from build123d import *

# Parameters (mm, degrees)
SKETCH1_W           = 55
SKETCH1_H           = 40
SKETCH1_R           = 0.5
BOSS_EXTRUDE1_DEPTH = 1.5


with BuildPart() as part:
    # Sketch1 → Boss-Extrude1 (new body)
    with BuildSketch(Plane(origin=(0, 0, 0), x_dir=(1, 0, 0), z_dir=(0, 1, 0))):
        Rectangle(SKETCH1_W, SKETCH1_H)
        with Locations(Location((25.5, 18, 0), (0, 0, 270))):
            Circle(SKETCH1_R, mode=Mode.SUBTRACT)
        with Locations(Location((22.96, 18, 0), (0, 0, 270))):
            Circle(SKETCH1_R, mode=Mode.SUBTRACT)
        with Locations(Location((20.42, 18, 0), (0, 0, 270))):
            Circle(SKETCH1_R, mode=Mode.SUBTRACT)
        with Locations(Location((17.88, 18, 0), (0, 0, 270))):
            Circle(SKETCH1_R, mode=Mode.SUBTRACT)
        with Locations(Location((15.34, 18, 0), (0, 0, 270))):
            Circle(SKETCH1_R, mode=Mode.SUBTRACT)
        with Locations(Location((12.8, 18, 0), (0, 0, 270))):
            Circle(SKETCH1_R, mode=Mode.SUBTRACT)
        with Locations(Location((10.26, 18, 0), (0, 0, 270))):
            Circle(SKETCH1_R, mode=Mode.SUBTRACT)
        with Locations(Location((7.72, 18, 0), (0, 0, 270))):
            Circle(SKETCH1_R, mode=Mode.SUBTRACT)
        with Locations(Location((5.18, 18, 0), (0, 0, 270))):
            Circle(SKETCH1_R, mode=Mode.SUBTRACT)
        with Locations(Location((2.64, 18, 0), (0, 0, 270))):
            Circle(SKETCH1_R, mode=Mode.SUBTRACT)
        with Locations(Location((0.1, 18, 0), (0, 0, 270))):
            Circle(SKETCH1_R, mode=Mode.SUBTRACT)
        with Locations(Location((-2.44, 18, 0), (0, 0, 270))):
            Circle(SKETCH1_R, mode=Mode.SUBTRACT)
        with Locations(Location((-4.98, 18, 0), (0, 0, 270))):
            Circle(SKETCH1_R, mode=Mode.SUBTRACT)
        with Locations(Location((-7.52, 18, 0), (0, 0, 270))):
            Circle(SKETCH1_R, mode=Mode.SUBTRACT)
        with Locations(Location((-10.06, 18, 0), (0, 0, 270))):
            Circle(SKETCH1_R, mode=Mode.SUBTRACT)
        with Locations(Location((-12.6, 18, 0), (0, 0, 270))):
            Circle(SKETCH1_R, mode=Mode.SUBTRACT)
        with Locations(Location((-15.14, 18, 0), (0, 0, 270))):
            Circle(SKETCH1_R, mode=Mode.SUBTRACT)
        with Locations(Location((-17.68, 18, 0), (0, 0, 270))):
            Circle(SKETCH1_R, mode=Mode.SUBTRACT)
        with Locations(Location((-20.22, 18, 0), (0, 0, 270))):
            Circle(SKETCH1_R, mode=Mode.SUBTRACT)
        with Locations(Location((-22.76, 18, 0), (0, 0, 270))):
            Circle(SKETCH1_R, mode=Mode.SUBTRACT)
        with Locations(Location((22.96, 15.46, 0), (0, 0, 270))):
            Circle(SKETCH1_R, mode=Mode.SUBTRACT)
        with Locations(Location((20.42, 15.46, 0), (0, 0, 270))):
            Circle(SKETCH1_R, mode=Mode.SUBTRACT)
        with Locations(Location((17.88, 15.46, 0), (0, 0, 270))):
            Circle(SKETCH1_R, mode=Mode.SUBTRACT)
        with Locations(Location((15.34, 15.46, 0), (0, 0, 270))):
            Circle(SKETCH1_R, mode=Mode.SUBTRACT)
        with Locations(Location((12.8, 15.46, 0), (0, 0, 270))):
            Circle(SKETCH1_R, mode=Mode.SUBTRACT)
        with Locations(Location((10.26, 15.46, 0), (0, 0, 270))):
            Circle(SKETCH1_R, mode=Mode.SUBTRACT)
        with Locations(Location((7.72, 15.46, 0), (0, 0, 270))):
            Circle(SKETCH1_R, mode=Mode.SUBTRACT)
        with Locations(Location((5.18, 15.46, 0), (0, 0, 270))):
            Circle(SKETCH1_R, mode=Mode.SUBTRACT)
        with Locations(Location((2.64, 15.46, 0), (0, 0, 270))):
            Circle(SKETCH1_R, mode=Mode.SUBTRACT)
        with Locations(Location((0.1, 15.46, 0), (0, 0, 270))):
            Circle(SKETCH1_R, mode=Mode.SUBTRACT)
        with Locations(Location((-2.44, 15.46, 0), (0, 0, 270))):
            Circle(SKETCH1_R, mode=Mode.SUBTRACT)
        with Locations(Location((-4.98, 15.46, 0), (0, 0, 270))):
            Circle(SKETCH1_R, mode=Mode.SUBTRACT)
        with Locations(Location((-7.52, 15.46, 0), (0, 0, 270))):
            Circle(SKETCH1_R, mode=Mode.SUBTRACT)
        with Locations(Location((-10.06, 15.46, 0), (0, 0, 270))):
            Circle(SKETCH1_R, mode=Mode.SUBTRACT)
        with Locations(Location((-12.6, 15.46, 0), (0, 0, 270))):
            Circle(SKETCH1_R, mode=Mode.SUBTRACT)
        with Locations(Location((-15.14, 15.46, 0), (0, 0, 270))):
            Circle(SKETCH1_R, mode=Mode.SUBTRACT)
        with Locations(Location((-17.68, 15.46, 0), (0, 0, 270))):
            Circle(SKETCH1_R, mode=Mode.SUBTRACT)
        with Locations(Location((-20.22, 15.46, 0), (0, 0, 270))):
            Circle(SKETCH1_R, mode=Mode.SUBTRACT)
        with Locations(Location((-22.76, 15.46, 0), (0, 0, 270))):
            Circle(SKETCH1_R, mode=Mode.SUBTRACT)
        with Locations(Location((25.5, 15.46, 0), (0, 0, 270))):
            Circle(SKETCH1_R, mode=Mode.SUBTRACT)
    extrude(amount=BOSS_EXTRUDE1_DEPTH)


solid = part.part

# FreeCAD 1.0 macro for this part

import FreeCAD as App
import Part
import Sketcher
Q = App.Units.Quantity

doc = App.newDocument("Part")
params = doc.addObject("Spreadsheet::Sheet", "Params")
for row, (alias, value) in enumerate([
    ("sketch1_diameter", "1 mm"),
    ("sketch1_width", "55 mm"),
    ("sketch1_height", "40 mm"),
    ("pad1_length", "1.5 mm"),
], start=1):
    params.set(f"A{row}", alias)
    params.set(f"B{row}", "=" + value)
    params.setAlias(f"B{row}", alias)

body = doc.addObject("PartDesign::Body", "Body")

# Sketch on XZ plane
sketch1 = body.newObject("Sketcher::SketchObject", "Sketch")
sketch1.AttachmentSupport = (doc.getObject("XZ_Plane"), [""])
sketch1.MapMode = "FlatFace"
sketch1.addGeometry(Part.LineSegment(App.Vector(-27.5, -20, 0), App.Vector(-27.5, 20, 0)), False)
sketch1.addGeometry(Part.LineSegment(App.Vector(-27.5, 20, 0), App.Vector(27.5, 20, 0)), False)
sketch1.addGeometry(Part.LineSegment(App.Vector(27.5, 20, 0), App.Vector(27.5, -20, 0)), False)
sketch1.addGeometry(Part.LineSegment(App.Vector(27.5, -20, 0), App.Vector(-27.5, -20, 0)), False)
sketch1.addGeometry(Part.Circle(App.Vector(-22.76, -15.46, 0), App.Vector(0, 0, 1), 0.5), False)
sketch1.addGeometry(Part.Circle(App.Vector(-20.22, -15.46, 0), App.Vector(0, 0, 1), 0.5), False)
sketch1.addGeometry(Part.Circle(App.Vector(-17.68, -15.46, 0), App.Vector(0, 0, 1), 0.5), False)
sketch1.addGeometry(Part.Circle(App.Vector(-15.14, -15.46, 0), App.Vector(0, 0, 1), 0.5), False)
sketch1.addGeometry(Part.Circle(App.Vector(-12.6, -15.46, 0), App.Vector(0, 0, 1), 0.5), False)
sketch1.addGeometry(Part.Circle(App.Vector(-10.06, -15.46, 0), App.Vector(0, 0, 1), 0.5), False)
sketch1.addGeometry(Part.Circle(App.Vector(-7.52, -15.46, 0), App.Vector(0, 0, 1), 0.5), False)
sketch1.addGeometry(Part.Circle(App.Vector(-4.98, -15.46, 0), App.Vector(0, 0, 1), 0.5), False)
sketch1.addGeometry(Part.Circle(App.Vector(-2.44, -15.46, 0), App.Vector(0, 0, 1), 0.5), False)
sketch1.addGeometry(Part.Circle(App.Vector(0.1, -15.46, 0), App.Vector(0, 0, 1), 0.5), False)
sketch1.addGeometry(Part.Circle(App.Vector(2.64, -15.46, 0), App.Vector(0, 0, 1), 0.5), False)
sketch1.addGeometry(Part.Circle(App.Vector(5.18, -15.46, 0), App.Vector(0, 0, 1), 0.5), False)
sketch1.addGeometry(Part.Circle(App.Vector(7.72, -15.46, 0), App.Vector(0, 0, 1), 0.5), False)
sketch1.addGeometry(Part.Circle(App.Vector(10.26, -15.46, 0), App.Vector(0, 0, 1), 0.5), False)
sketch1.addGeometry(Part.Circle(App.Vector(12.8, -15.46, 0), App.Vector(0, 0, 1), 0.5), False)
sketch1.addGeometry(Part.Circle(App.Vector(15.34, -15.46, 0), App.Vector(0, 0, 1), 0.5), False)
sketch1.addGeometry(Part.Circle(App.Vector(17.88, -15.46, 0), App.Vector(0, 0, 1), 0.5), False)
sketch1.addGeometry(Part.Circle(App.Vector(20.42, -15.46, 0), App.Vector(0, 0, 1), 0.5), False)
sketch1.addGeometry(Part.Circle(App.Vector(22.96, -15.46, 0), App.Vector(0, 0, 1), 0.5), False)
sketch1.addGeometry(Part.Circle(App.Vector(25.5, -15.46, 0), App.Vector(0, 0, 1), 0.5), False)
sketch1.addGeometry(Part.Circle(App.Vector(-22.76, -18, 0), App.Vector(0, 0, 1), 0.5), False)
sketch1.addGeometry(Part.Circle(App.Vector(-20.22, -18, 0), App.Vector(0, 0, 1), 0.5), False)
sketch1.addGeometry(Part.Circle(App.Vector(-17.68, -18, 0), App.Vector(0, 0, 1), 0.5), False)
sketch1.addGeometry(Part.Circle(App.Vector(-15.14, -18, 0), App.Vector(0, 0, 1), 0.5), False)
sketch1.addGeometry(Part.Circle(App.Vector(-12.6, -18, 0), App.Vector(0, 0, 1), 0.5), False)
sketch1.addGeometry(Part.Circle(App.Vector(-10.06, -18, 0), App.Vector(0, 0, 1), 0.5), False)
sketch1.addGeometry(Part.Circle(App.Vector(-7.52, -18, 0), App.Vector(0, 0, 1), 0.5), False)
sketch1.addGeometry(Part.Circle(App.Vector(-4.98, -18, 0), App.Vector(0, 0, 1), 0.5), False)
sketch1.addGeometry(Part.Circle(App.Vector(-2.44, -18, 0), App.Vector(0, 0, 1), 0.5), False)
sketch1.addGeometry(Part.Circle(App.Vector(0.1, -18, 0), App.Vector(0, 0, 1), 0.5), False)
sketch1.addGeometry(Part.Circle(App.Vector(2.64, -18, 0), App.Vector(0, 0, 1), 0.5), False)
sketch1.addGeometry(Part.Circle(App.Vector(5.18, -18, 0), App.Vector(0, 0, 1), 0.5), False)
sketch1.addGeometry(Part.Circle(App.Vector(7.72, -18, 0), App.Vector(0, 0, 1), 0.5), False)
sketch1.addGeometry(Part.Circle(App.Vector(10.26, -18, 0), App.Vector(0, 0, 1), 0.5), False)
sketch1.addGeometry(Part.Circle(App.Vector(12.8, -18, 0), App.Vector(0, 0, 1), 0.5), False)
sketch1.addGeometry(Part.Circle(App.Vector(15.34, -18, 0), App.Vector(0, 0, 1), 0.5), False)
sketch1.addGeometry(Part.Circle(App.Vector(17.88, -18, 0), App.Vector(0, 0, 1), 0.5), False)
sketch1.addGeometry(Part.Circle(App.Vector(20.42, -18, 0), App.Vector(0, 0, 1), 0.5), False)
sketch1.addGeometry(Part.Circle(App.Vector(22.96, -18, 0), App.Vector(0, 0, 1), 0.5), False)
sketch1.addGeometry(Part.Circle(App.Vector(25.5, -18, 0), App.Vector(0, 0, 1), 0.5), False)
sketch1.addConstraint(Sketcher.Constraint("Coincident", 0, 2, 1, 1))
sketch1.addConstraint(Sketcher.Constraint("Coincident", 1, 2, 2, 1))
sketch1.addConstraint(Sketcher.Constraint("Coincident", 2, 2, 3, 1))
sketch1.addConstraint(Sketcher.Constraint("Coincident", 3, 2, 0, 1))
sketch1.addConstraint(Sketcher.Constraint("Vertical", 0))
sketch1.addConstraint(Sketcher.Constraint("Horizontal", 1))
sketch1.addConstraint(Sketcher.Constraint("Vertical", 2))
sketch1.addConstraint(Sketcher.Constraint("Horizontal", 3))
sketch1.addConstraint(Sketcher.Constraint("Equal", 4, 5))
sketch1.addConstraint(Sketcher.Constraint("Equal", 5, 6))
sketch1.addConstraint(Sketcher.Constraint("Equal", 6, 7))
sketch1.addConstraint(Sketcher.Constraint("Equal", 7, 8))
sketch1.addConstraint(Sketcher.Constraint("Equal", 8, 9))
sketch1.addConstraint(Sketcher.Constraint("Equal", 9, 10))
sketch1.addConstraint(Sketcher.Constraint("Equal", 10, 11))
sketch1.addConstraint(Sketcher.Constraint("Equal", 11, 12))
sketch1.addConstraint(Sketcher.Constraint("Equal", 12, 13))
sketch1.addConstraint(Sketcher.Constraint("Equal", 13, 14))
sketch1.addConstraint(Sketcher.Constraint("Equal", 14, 15))
sketch1.addConstraint(Sketcher.Constraint("Equal", 15, 16))
sketch1.addConstraint(Sketcher.Constraint("Equal", 16, 17))
sketch1.addConstraint(Sketcher.Constraint("Equal", 17, 18))
sketch1.addConstraint(Sketcher.Constraint("Equal", 18, 19))
sketch1.addConstraint(Sketcher.Constraint("Equal", 19, 20))
sketch1.addConstraint(Sketcher.Constraint("Equal", 20, 21))
sketch1.addConstraint(Sketcher.Constraint("Equal", 21, 22))
sketch1.addConstraint(Sketcher.Constraint("Equal", 22, 23))
sketch1.addConstraint(Sketcher.Constraint("Equal", 23, 24))
sketch1.addConstraint(Sketcher.Constraint("Equal", 24, 25))
sketch1.addConstraint(Sketcher.Constraint("Equal", 25, 26))
sketch1.addConstraint(Sketcher.Constraint("Equal", 26, 27))
sketch1.addConstraint(Sketcher.Constraint("Equal", 27, 28))
sketch1.addConstraint(Sketcher.Constraint("Equal", 28, 29))
sketch1.addConstraint(Sketcher.Constraint("Equal", 29, 30))
sketch1.addConstraint(Sketcher.Constraint("Equal", 30, 31))
sketch1.addConstraint(Sketcher.Constraint("Equal", 31, 32))
sketch1.addConstraint(Sketcher.Constraint("Equal", 32, 33))
sketch1.addConstraint(Sketcher.Constraint("Equal", 33, 34))
sketch1.addConstraint(Sketcher.Constraint("Equal", 34, 35))
sketch1.addConstraint(Sketcher.Constraint("Equal", 35, 36))
sketch1.addConstraint(Sketcher.Constraint("Equal", 36, 37))
sketch1.addConstraint(Sketcher.Constraint("Equal", 37, 38))
sketch1.addConstraint(Sketcher.Constraint("Equal", 38, 39))
sketch1.addConstraint(Sketcher.Constraint("Equal", 39, 40))
sketch1.addConstraint(Sketcher.Constraint("Equal", 40, 41))
sketch1.addConstraint(Sketcher.Constraint("Equal", 41, 42))
sketch1.addConstraint(Sketcher.Constraint("Equal", 42, 43))
sketch1.addConstraint(Sketcher.Constraint("Symmetric", 0, 2, 2, 2, -1, 1))
sketch1.addConstraint(Sketcher.Constraint("Horizontal", 4, 3, 5, 3))
sketch1.addConstraint(Sketcher.Constraint("Horizontal", 5, 3, 6, 3))
sketch1.addConstraint(Sketcher.Constraint("Horizontal", 6, 3, 7, 3))
sketch1.addConstraint(Sketcher.Constraint("Horizontal", 7, 3, 8, 3))
sketch1.addConstraint(Sketcher.Constraint("Horizontal", 8, 3, 9, 3))
sketch1.addConstraint(Sketcher.Constraint("Horizontal", 9, 3, 10, 3))
sketch1.addConstraint(Sketcher.Constraint("Horizontal", 10, 3, 11, 3))
sketch1.addConstraint(Sketcher.Constraint("Horizontal", 11, 3, 12, 3))
sketch1.addConstraint(Sketcher.Constraint("Horizontal", 12, 3, 13, 3))
sketch1.addConstraint(Sketcher.Constraint("Horizontal", 13, 3, 14, 3))
sketch1.addConstraint(Sketcher.Constraint("Horizontal", 14, 3, 15, 3))
sketch1.addConstraint(Sketcher.Constraint("Horizontal", 15, 3, 16, 3))
sketch1.addConstraint(Sketcher.Constraint("Horizontal", 16, 3, 17, 3))
sketch1.addConstraint(Sketcher.Constraint("Horizontal", 17, 3, 18, 3))
sketch1.addConstraint(Sketcher.Constraint("Horizontal", 18, 3, 19, 3))
sketch1.addConstraint(Sketcher.Constraint("Horizontal", 19, 3, 20, 3))
sketch1.addConstraint(Sketcher.Constraint("Horizontal", 20, 3, 21, 3))
sketch1.addConstraint(Sketcher.Constraint("Horizontal", 21, 3, 22, 3))
sketch1.addConstraint(Sketcher.Constraint("Horizontal", 22, 3, 23, 3))
sketch1.addConstraint(Sketcher.Constraint("Horizontal", 24, 3, 25, 3))
sketch1.addConstraint(Sketcher.Constraint("Horizontal", 25, 3, 26, 3))
sketch1.addConstraint(Sketcher.Constraint("Horizontal", 26, 3, 27, 3))
sketch1.addConstraint(Sketcher.Constraint("Horizontal", 27, 3, 28, 3))
sketch1.addConstraint(Sketcher.Constraint("Horizontal", 28, 3, 29, 3))
sketch1.addConstraint(Sketcher.Constraint("Horizontal", 29, 3, 30, 3))
sketch1.addConstraint(Sketcher.Constraint("Horizontal", 30, 3, 31, 3))
sketch1.addConstraint(Sketcher.Constraint("Horizontal", 31, 3, 32, 3))
sketch1.addConstraint(Sketcher.Constraint("Horizontal", 32, 3, 33, 3))
sketch1.addConstraint(Sketcher.Constraint("Horizontal", 33, 3, 34, 3))
sketch1.addConstraint(Sketcher.Constraint("Horizontal", 34, 3, 35, 3))
sketch1.addConstraint(Sketcher.Constraint("Horizontal", 35, 3, 36, 3))
sketch1.addConstraint(Sketcher.Constraint("Horizontal", 36, 3, 37, 3))
sketch1.addConstraint(Sketcher.Constraint("Horizontal", 37, 3, 38, 3))
sketch1.addConstraint(Sketcher.Constraint("Horizontal", 38, 3, 39, 3))
sketch1.addConstraint(Sketcher.Constraint("Horizontal", 39, 3, 40, 3))
sketch1.addConstraint(Sketcher.Constraint("Horizontal", 40, 3, 41, 3))
sketch1.addConstraint(Sketcher.Constraint("Horizontal", 41, 3, 42, 3))
sketch1.addConstraint(Sketcher.Constraint("Horizontal", 42, 3, 43, 3))
sketch1.addConstraint(Sketcher.Constraint("Vertical", 4, 3, 24, 3))
sketch1.addConstraint(Sketcher.Constraint("Vertical", 5, 3, 25, 3))
sketch1.addConstraint(Sketcher.Constraint("Vertical", 6, 3, 26, 3))
sketch1.addConstraint(Sketcher.Constraint("Vertical", 7, 3, 27, 3))
sketch1.addConstraint(Sketcher.Constraint("Vertical", 8, 3, 28, 3))
sketch1.addConstraint(Sketcher.Constraint("Vertical", 9, 3, 29, 3))
sketch1.addConstraint(Sketcher.Constraint("Vertical", 10, 3, 30, 3))
sketch1.addConstraint(Sketcher.Constraint("Vertical", 11, 3, 31, 3))
sketch1.addConstraint(Sketcher.Constraint("Vertical", 12, 3, 32, 3))
sketch1.addConstraint(Sketcher.Constraint("Vertical", 13, 3, 33, 3))
sketch1.addConstraint(Sketcher.Constraint("Vertical", 14, 3, 34, 3))
sketch1.addConstraint(Sketcher.Constraint("Vertical", 15, 3, 35, 3))
sketch1.addConstraint(Sketcher.Constraint("Vertical", 16, 3, 36, 3))
sketch1.addConstraint(Sketcher.Constraint("Vertical", 17, 3, 37, 3))
sketch1.addConstraint(Sketcher.Constraint("Vertical", 18, 3, 38, 3))
sketch1.addConstraint(Sketcher.Constraint("Vertical", 19, 3, 39, 3))
sketch1.addConstraint(Sketcher.Constraint("Vertical", 20, 3, 40, 3))
sketch1.addConstraint(Sketcher.Constraint("Vertical", 21, 3, 41, 3))
sketch1.addConstraint(Sketcher.Constraint("Vertical", 22, 3, 42, 3))
sketch1.addConstraint(Sketcher.Constraint("Vertical", 23, 3, 43, 3))
sketch1.addConstraint(Sketcher.Constraint("Diameter", 4, Q("1 mm")))
sketch1.addConstraint(Sketcher.Constraint("DistanceX", 1, 1, 1, 2, Q("55 mm")))
sketch1.addConstraint(Sketcher.Constraint("DistanceY", 0, 1, 0, 2, Q("40 mm")))
sketch1.addConstraint(Sketcher.Constraint("DistanceY", 24, 3, -1, 1, Q("18 mm")))
sketch1.addConstraint(Sketcher.Constraint("DistanceX", 23, 3, 1, 2, Q("2 mm")))
sketch1.addConstraint(Sketcher.Constraint("DistanceX", 8, 3, -1, 1, Q("12.6 mm")))
sketch1.addConstraint(Sketcher.Constraint("DistanceX", -1, 1, 13, 3, Q("0.1 mm")))
sketch1.addConstraint(Sketcher.Constraint("DistanceX", -1, 1, 18, 3, Q("12.8 mm")))
sketch1.addConstraint(Sketcher.Constraint("DistanceX", 4, 3, 9, 3, Q("12.7 mm")))
sketch1.addConstraint(Sketcher.Constraint("DistanceX", 5, 3, 10, 3, Q("12.7 mm")))
sketch1.addConstraint(Sketcher.Constraint("DistanceX", 6, 3, 11, 3, Q("12.7 mm")))
sketch1.addConstraint(Sketcher.Constraint("DistanceX", 7, 3, 12, 3, Q("12.7 mm")))
sketch1.addConstraint(Sketcher.Constraint("DistanceX", 9, 3, 14, 3, Q("12.7 mm")))
sketch1.addConstraint(Sketcher.Constraint("DistanceX", 10, 3, 15, 3, Q("12.7 mm")))
sketch1.addConstraint(Sketcher.Constraint("DistanceX", 11, 3, 16, 3, Q("12.7 mm")))
sketch1.addConstraint(Sketcher.Constraint("DistanceX", 12, 3, 17, 3, Q("12.7 mm")))
sketch1.addConstraint(Sketcher.Constraint("DistanceX", 14, 3, 19, 3, Q("12.7 mm")))
sketch1.addConstraint(Sketcher.Constraint("DistanceX", 15, 3, 20, 3, Q("12.7 mm")))
sketch1.addConstraint(Sketcher.Constraint("DistanceX", 16, 3, 21, 3, Q("12.7 mm")))
sketch1.addConstraint(Sketcher.Constraint("DistanceX", 17, 3, 22, 3, Q("12.7 mm")))
sketch1.addConstraint(Sketcher.Constraint("DistanceX", 4, 3, -1, 1, Q("22.76 mm")))
sketch1.addConstraint(Sketcher.Constraint("DistanceY", 4, 3, -1, 1, Q("15.46 mm")))
sketch1.addConstraint(Sketcher.Constraint("DistanceX", 5, 3, -1, 1, Q("20.22 mm")))
sketch1.addConstraint(Sketcher.Constraint("DistanceX", 6, 3, -1, 1, Q("17.68 mm")))
sketch1.addConstraint(Sketcher.Constraint("DistanceX", 7, 3, -1, 1, Q("15.14 mm")))
sketch1.setExpression("Constraints[106]", "Params.sketch1_diameter")
sketch1.setExpression("Constraints[107]", "Params.sketch1_width")
sketch1.setExpression("Constraints[108]", "Params.sketch1_height")
pad1 = body.newObject("PartDesign::Pad", "Pad")
pad1.Profile = sketch1
pad1.setExpression("Length", "Params.pad1_length")
pad1.Reversed = True

doc.recompute()
